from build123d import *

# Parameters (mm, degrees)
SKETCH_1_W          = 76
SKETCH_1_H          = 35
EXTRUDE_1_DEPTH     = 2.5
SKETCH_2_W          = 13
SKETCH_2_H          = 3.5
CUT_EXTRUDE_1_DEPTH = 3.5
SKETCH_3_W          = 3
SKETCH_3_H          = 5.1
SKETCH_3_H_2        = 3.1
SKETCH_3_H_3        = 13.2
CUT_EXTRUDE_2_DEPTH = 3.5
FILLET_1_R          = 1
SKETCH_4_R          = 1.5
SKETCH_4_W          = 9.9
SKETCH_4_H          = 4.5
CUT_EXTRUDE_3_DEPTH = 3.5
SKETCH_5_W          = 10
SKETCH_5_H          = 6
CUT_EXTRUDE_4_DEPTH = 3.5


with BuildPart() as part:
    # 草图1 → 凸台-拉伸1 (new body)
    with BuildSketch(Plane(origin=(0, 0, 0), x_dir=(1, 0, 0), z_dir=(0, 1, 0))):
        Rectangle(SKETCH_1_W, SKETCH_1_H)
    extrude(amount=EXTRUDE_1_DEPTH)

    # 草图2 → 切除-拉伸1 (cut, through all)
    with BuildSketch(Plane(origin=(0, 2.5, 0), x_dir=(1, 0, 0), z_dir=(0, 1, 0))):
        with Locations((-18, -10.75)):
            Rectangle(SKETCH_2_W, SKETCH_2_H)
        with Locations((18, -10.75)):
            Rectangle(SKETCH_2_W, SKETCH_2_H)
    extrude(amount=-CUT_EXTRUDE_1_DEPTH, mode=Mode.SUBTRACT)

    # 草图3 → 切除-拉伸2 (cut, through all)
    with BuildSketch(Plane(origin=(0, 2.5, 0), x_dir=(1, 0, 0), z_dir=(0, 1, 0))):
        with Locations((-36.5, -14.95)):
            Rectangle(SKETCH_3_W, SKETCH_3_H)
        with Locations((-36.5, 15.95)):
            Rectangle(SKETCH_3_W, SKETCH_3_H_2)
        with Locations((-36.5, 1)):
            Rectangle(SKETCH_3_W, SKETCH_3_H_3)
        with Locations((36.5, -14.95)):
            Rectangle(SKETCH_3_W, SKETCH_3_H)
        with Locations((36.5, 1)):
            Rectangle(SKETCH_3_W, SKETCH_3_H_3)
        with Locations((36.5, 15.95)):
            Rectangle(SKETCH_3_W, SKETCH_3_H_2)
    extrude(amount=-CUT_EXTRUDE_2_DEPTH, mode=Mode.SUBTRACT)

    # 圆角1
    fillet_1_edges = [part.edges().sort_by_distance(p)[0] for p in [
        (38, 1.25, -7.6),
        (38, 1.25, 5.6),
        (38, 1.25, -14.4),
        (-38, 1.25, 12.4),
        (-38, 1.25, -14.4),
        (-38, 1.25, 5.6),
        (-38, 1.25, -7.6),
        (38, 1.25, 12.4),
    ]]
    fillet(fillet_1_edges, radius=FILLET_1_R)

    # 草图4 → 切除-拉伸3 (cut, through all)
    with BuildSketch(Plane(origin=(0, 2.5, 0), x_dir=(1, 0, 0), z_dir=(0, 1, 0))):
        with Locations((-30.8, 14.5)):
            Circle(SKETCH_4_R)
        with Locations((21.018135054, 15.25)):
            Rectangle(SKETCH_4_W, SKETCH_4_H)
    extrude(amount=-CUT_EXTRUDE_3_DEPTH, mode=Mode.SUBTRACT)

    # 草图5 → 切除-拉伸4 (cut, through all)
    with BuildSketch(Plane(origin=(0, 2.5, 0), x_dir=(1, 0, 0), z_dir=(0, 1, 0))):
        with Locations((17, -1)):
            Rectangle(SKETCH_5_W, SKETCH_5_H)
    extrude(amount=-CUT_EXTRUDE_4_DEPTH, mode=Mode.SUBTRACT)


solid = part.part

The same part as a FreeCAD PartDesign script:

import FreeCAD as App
import Part
import Sketcher


def edges_at(feature, points):
    """Names of the edges that pass closest to the given points."""
    edges = feature.Shape.Edges
    near = lambda p: min(range(len(edges)), key=lambda i: edges[i].distToShape(Part.Vertex(*p))[0])
    return sorted({f"Edge{near(p) + 1}" for p in points})

doc = App.newDocument("Part")
body = doc.addObject("PartDesign::Body", "Body")

sketch1 = body.newObject("Sketcher::SketchObject", "Sketch")
sketch1.AttachmentSupport = (doc.getObject("XZ_Plane"), [""])
sketch1.MapMode = "FlatFace"
sketch1.addGeometry(Part.LineSegment(App.Vector(-38, -18, 0), App.Vector(-38, 18, 0)), False)
sketch1.addGeometry(Part.LineSegment(App.Vector(-38, 18, 0), App.Vector(38, 18, 0)), False)
sketch1.addGeometry(Part.LineSegment(App.Vector(38, 18, 0), App.Vector(38, -18, 0)), False)
sketch1.addGeometry(Part.LineSegment(App.Vector(38, -18, 0), App.Vector(-38, -18, 0)), False)
sketch1.addConstraint(Sketcher.Constraint("Coincident", 0, 2, 1, 1))
sketch1.addConstraint(Sketcher.Constraint("Coincident", 1, 2, 2, 1))
sketch1.addConstraint(Sketcher.Constraint("Coincident", 2, 2, 3, 1))
sketch1.addConstraint(Sketcher.Constraint("Coincident", 3, 2, 0, 1))
sketch1.addConstraint(Sketcher.Constraint("Vertical", 0))
sketch1.addConstraint(Sketcher.Constraint("Horizontal", 1))
sketch1.addConstraint(Sketcher.Constraint("Vertical", 2))
sketch1.addConstraint(Sketcher.Constraint("Horizontal", 3))
sketch1.addConstraint(Sketcher.Constraint("Symmetric", 0, 2, 2, 2, -1, 1))
sketch1.addConstraint(Sketcher.Constraint("DistanceX", 1, 1, 1, 2, 76.0))
sketch1.addConstraint(Sketcher.Constraint("DistanceY", 0, 1, 0, 2, 35.0))
pad1 = body.newObject("PartDesign::Pad", "Pad")
pad1.Profile = sketch1
pad1.Length = 2.5
pad1.Reversed = True

sketch2 = body.newObject("Sketcher::SketchObject", "Sketch001")
sketch2.AttachmentSupport = (doc.getObject("XZ_Plane"), [""])
sketch2.MapMode = "FlatFace"
sketch2.AttachmentOffset = App.Placement(App.Vector(0, 0, -2.5), App.Rotation())
sketch2.addGeometry(Part.LineSegment(App.Vector(-24.5, 9, 0), App.Vector(-24.5, 12.5, 0)), False)
sketch2.addGeometry(Part.LineSegment(App.Vector(-24.5, 12.5, 0), App.Vector(-11.5, 12.5, 0)), False)
sketch2.addGeometry(Part.LineSegment(App.Vector(-11.5, 12.5, 0), App.Vector(-11.5, 9, 0)), False)
sketch2.addGeometry(Part.LineSegment(App.Vector(-11.5, 9, 0), App.Vector(-24.5, 9, 0)), False)
sketch2.addGeometry(Part.LineSegment(App.Vector(11.5, 9, 0), App.Vector(11.5, 12.5, 0)), False)
sketch2.addGeometry(Part.LineSegment(App.Vector(11.5, 12.5, 0), App.Vector(24.5, 12.5, 0)), False)
sketch2.addGeometry(Part.LineSegment(App.Vector(24.5, 12.5, 0), App.Vector(24.5, 9, 0)), False)
sketch2.addGeometry(Part.LineSegment(App.Vector(24.5, 9, 0), App.Vector(11.5, 9, 0)), False)
sketch2.addConstraint(Sketcher.Constraint("Coincident", 0, 2, 1, 1))
sketch2.addConstraint(Sketcher.Constraint("Coincident", 1, 2, 2, 1))
sketch2.addConstraint(Sketcher.Constraint("Coincident", 2, 2, 3, 1))
sketch2.addConstraint(Sketcher.Constraint("Coincident", 3, 2, 0, 1))
sketch2.addConstraint(Sketcher.Constraint("Coincident", 4, 2, 5, 1))
sketch2.addConstraint(Sketcher.Constraint("Coincident", 5, 2, 6, 1))
sketch2.addConstraint(Sketcher.Constraint("Coincident", 6, 2, 7, 1))
sketch2.addConstraint(Sketcher.Constraint("Coincident", 7, 2, 4, 1))
sketch2.addConstraint(Sketcher.Constraint("Vertical", 0))
sketch2.addConstraint(Sketcher.Constraint("Horizontal", 1))
sketch2.addConstraint(Sketcher.Constraint("Vertical", 2))
sketch2.addConstraint(Sketcher.Constraint("Horizontal", 3))
sketch2.addConstraint(Sketcher.Constraint("Vertical", 4))
sketch2.addConstraint(Sketcher.Constraint("Horizontal", 5))
sketch2.addConstraint(Sketcher.Constraint("Vertical", 6))
sketch2.addConstraint(Sketcher.Constraint("Horizontal", 7))
sketch2.addConstraint(Sketcher.Constraint("Symmetric", 1, 2, 4, 2, -2))
sketch2.addConstraint(Sketcher.Constraint("Symmetric", 3, 2, 6, 2, -2))
sketch2.addConstraint(Sketcher.Constraint("DistanceX", 1, 1, 1, 2, 13.0))
sketch2.addConstraint(Sketcher.Constraint("DistanceY", 0, 1, 0, 2, 3.5))
sketch2.addConstraint(Sketcher.Constraint("DistanceY", -1, 1, 2, 2, 9.0))
sketch2.addConstraint(Sketcher.Constraint("DistanceX", 1, 2, 4, 2, 23.0))
pocket1 = body.newObject("PartDesign::Pocket", "Pocket")
pocket1.Profile = sketch2
pocket1.Type = "ThroughAll"
pocket1.Reversed = True

sketch3 = body.newObject("Sketcher::SketchObject", "Sketch002")
sketch3.AttachmentSupport = (doc.getObject("XZ_Plane"), [""])
sketch3.MapMode = "FlatFace"
sketch3.AttachmentOffset = App.Placement(App.Vector(0, 0, -2.5), App.Rotation())
sketch3.addGeometry(Part.LineSegment(App.Vector(-38, 12.4, 0), App.Vector(-38, 17.5, 0)), False)
sketch3.addGeometry(Part.LineSegment(App.Vector(-38, 17.5, 0), App.Vector(-35, 17.5, 0)), False)
sketch3.addGeometry(Part.LineSegment(App.Vector(-35, 17.5, 0), App.Vector(-35, 12.4, 0)), False)
sketch3.addGeometry(Part.LineSegment(App.Vector(-35, 12.4, 0), App.Vector(-38, 12.4, 0)), False)
sketch3.addGeometry(Part.LineSegment(App.Vector(-38, -17.5, 0), App.Vector(-38, -14.4, 0)), False)
sketch3.addGeometry(Part.LineSegment(App.Vector(-38, -14.4, 0), App.Vector(-35, -14.4, 0)), False)
sketch3.addGeometry(Part.LineSegment(App.Vector(-35, -14.4, 0), App.Vector(-35, -17.5, 0)), False)
sketch3.addGeometry(Part.LineSegment(App.Vector(-35, -17.5, 0), App.Vector(-38, -17.5, 0)), False)
sketch3.addGeometry(Part.LineSegment(App.Vector(-38, -7.6, 0), App.Vector(-38, 5.6, 0)), False)
sketch3.addGeometry(Part.LineSegment(App.Vector(-38, 5.6, 0), App.Vector(-35, 5.6, 0)), False)
sketch3.addGeometry(Part.LineSegment(App.Vector(-35, 5.6, 0), App.Vector(-35, -7.6, 0)), False)
sketch3.addGeometry(Part.LineSegment(App.Vector(-35, -7.6, 0), App.Vector(-38, -7.6, 0)), False)
sketch3.addGeometry(Part.LineSegment(App.Vector(35, 12.4, 0), App.Vector(35, 17.5, 0)), False)
sketch3.addGeometry(Part.LineSegment(App.Vector(35, 17.5, 0), App.Vector(38, 17.5, 0)), False)
sketch3.addGeometry(Part.LineSegment(App.Vector(38, 17.5, 0), App.Vector(38, 12.4, 0)), False)
sketch3.addGeometry(Part.LineSegment(App.Vector(38, 12.4, 0), App.Vector(35, 12.4, 0)), False)
sketch3.addGeometry(Part.LineSegment(App.Vector(35, -7.6, 0), App.Vector(35, 5.6, 0)), False)
sketch3.addGeometry(Part.LineSegment(App.Vector(35, 5.6, 0), App.Vector(38, 5.6, 0)), False)
sketch3.addGeometry(Part.LineSegment(App.Vector(38, 5.6, 0), App.Vector(38, -7.6, 0)), False)
sketch3.addGeometry(Part.LineSegment(App.Vector(38, -7.6, 0), App.Vector(35, -7.6, 0)), False)
sketch3.addGeometry(Part.LineSegment(App.Vector(35, -17.5, 0), App.Vector(35, -14.4, 0)), False)
sketch3.addGeometry(Part.LineSegment(App.Vector(35, -14.4, 0), App.Vector(38, -14.4, 0)), False)
sketch3.addGeometry(Part.LineSegment(App.Vector(38, -14.4, 0), App.Vector(38, -17.5, 0)), False)
sketch3.addGeometry(Part.LineSegment(App.Vector(38, -17.5, 0), App.Vector(35, -17.5, 0)), False)
sketch3.addConstraint(Sketcher.Constraint("Coincident", 0, 2, 1, 1))
sketch3.addConstraint(Sketcher.Constraint("Coincident", 1, 2, 2, 1))
sketch3.addConstraint(Sketcher.Constraint("Coincident", 2, 2, 3, 1))
sketch3.addConstraint(Sketcher.Constraint("Coincident", 3, 2, 0, 1))
sketch3.addConstraint(Sketcher.Constraint("Coincident", 4, 2, 5, 1))
sketch3.addConstraint(Sketcher.Constraint("Coincident", 5, 2, 6, 1))
sketch3.addConstraint(Sketcher.Constraint("Coincident", 6, 2, 7, 1))
sketch3.addConstraint(Sketcher.Constraint("Coincident", 7, 2, 4, 1))
sketch3.addConstraint(Sketcher.Constraint("Coincident", 8, 2, 9, 1))
sketch3.addConstraint(Sketcher.Constraint("Coincident", 9, 2, 10, 1))
sketch3.addConstraint(Sketcher.Constraint("Coincident", 10, 2, 11, 1))
sketch3.addConstraint(Sketcher.Constraint("Coincident", 11, 2, 8, 1))
sketch3.addConstraint(Sketcher.Constraint("Coincident", 12, 2, 13, 1))
sketch3.addConstraint(Sketcher.Constraint("Coincident", 13, 2, 14, 1))
sketch3.addConstraint(Sketcher.Constraint("Coincident", 14, 2, 15, 1))
sketch3.addConstraint(Sketcher.Constraint("Coincident", 15, 2, 12, 1))
sketch3.addConstraint(Sketcher.Constraint("Coincident", 16, 2, 17, 1))
sketch3.addConstraint(Sketcher.Constraint("Coincident", 17, 2, 18, 1))
sketch3.addConstraint(Sketcher.Constraint("Coincident", 18, 2, 19, 1))
sketch3.addConstraint(Sketcher.Constraint("Coincident", 19, 2, 16, 1))
sketch3.addConstraint(Sketcher.Constraint("Coincident", 20, 2, 21, 1))
sketch3.addConstraint(Sketcher.Constraint("Coincident", 21, 2, 22, 1))
sketch3.addConstraint(Sketcher.Constraint("Coincident", 22, 2, 23, 1))
sketch3.addConstraint(Sketcher.Constraint("Coincident", 23, 2, 20, 1))
sketch3.addConstraint(Sketcher.Constraint("Vertical", 0))
sketch3.addConstraint(Sketcher.Constraint("Horizontal", 1))
sketch3.addConstraint(Sketcher.Constraint("Vertical", 2))
sketch3.addConstraint(Sketcher.Constraint("Horizontal", 3))
sketch3.addConstraint(Sketcher.Constraint("Vertical", 4))
sketch3.addConstraint(Sketcher.Constraint("Horizontal", 5))
sketch3.addConstraint(Sketcher.Constraint("Vertical", 6))
sketch3.addConstraint(Sketcher.Constraint("Horizontal", 7))
sketch3.addConstraint(Sketcher.Constraint("Vertical", 8))
sketch3.addConstraint(Sketcher.Constraint("Horizontal", 9))
sketch3.addConstraint(Sketcher.Constraint("Vertical", 10))
sketch3.addConstraint(Sketcher.Constraint("Horizontal", 11))
sketch3.addConstraint(Sketcher.Constraint("Vertical", 12))
sketch3.addConstraint(Sketcher.Constraint("Horizontal", 13))
sketch3.addConstraint(Sketcher.Constraint("Vertical", 14))
sketch3.addConstraint(Sketcher.Constraint("Horizontal", 15))
sketch3.addConstraint(Sketcher.Constraint("Vertical", 16))
sketch3.addConstraint(Sketcher.Constraint("Horizontal", 17))
sketch3.addConstraint(Sketcher.Constraint("Vertical", 18))
sketch3.addConstraint(Sketcher.Constraint("Horizontal", 19))
sketch3.addConstraint(Sketcher.Constraint("Vertical", 20))
sketch3.addConstraint(Sketcher.Constraint("Horizontal", 21))
sketch3.addConstraint(Sketcher.Constraint("Vertical", 22))
sketch3.addConstraint(Sketcher.Constraint("Horizontal", 23))
sketch3.addConstraint(Sketcher.Constraint("Symmetric", 6, 2, 12, 2, -1, 1))
sketch3.addConstraint(Sketcher.Constraint("Symmetric", 0, 2, 22, 2, -1, 1))
sketch3.addConstraint(Sketcher.Constraint("Symmetric", 1, 2, 12, 2, -2))
sketch3.addConstraint(Sketcher.Constraint("Symmetric", 3, 2, 14, 2, -2))
sketch3.addConstraint(Sketcher.Constraint("Symmetric", 9, 2, 16, 2, -2))
sketch3.addConstraint(Sketcher.Constraint("Symmetric", 11, 2, 18, 2, -2))
sketch3.addConstraint(Sketcher.Constraint("Symmetric", 5, 2, 20, 2, -2))
sketch3.addConstraint(Sketcher.Constraint("Vertical", 3, 2, 4, 2))
sketch3.addConstraint(Sketcher.Constraint("Vertical", 7, 2, 8, 2))
sketch3.addConstraint(Sketcher.Constraint("Vertical", 6, 2, 9, 2))
sketch3.addConstraint(Sketcher.Constraint("DistanceX", 1, 1, 1, 2, 3.0))
sketch3.addConstraint(Sketcher.Constraint("DistanceY", 0, 1, 0, 2, 5.1))
sketch3.addConstraint(Sketcher.Constraint("DistanceY", 4, 1, 4, 2, 3.1))
sketch3.addConstraint(Sketcher.Constraint("DistanceY", 8, 1, 8, 2, 13.2))
sketch3.addConstraint(Sketcher.Constraint("DistanceX", 0, 2, -1, 1, 38.0))
sketch3.addConstraint(Sketcher.Constraint("DistanceY", 6, 2, 1, 2, 35.0))
sketch3.addConstraint(Sketcher.Constraint("DistanceY", 4, 2, 8, 2, 20.0))
pocket2 = body.newObject("PartDesign::Pocket", "Pocket001")
pocket2.Profile = sketch3
pocket2.Type = "ThroughAll"
pocket2.Reversed = True
doc.recompute()

fillet = body.newObject("PartDesign::Fillet", "Fillet")
fillet.Base = (pocket2, edges_at(pocket2, [
    (38, 1.25, -7.6),
    (38, 1.25, 5.6),
    (38, 1.25, -14.4),
    (-38, 1.25, 12.4),
    (-38, 1.25, -14.4),
    (-38, 1.25, 5.6),
    (-38, 1.25, -7.6),
    (38, 1.25, 12.4),
]))
fillet.Radius = 1

sketch4 = body.newObject("Sketcher::SketchObject", "Sketch003")
sketch4.AttachmentSupport = (doc.getObject("XZ_Plane"), [""])
sketch4.MapMode = "FlatFace"
sketch4.AttachmentOffset = App.Placement(App.Vector(0, 0, -2.5), App.Rotation())
sketch4.addGeometry(Part.Circle(App.Vector(-30.8, -14.5, 0), App.Vector(0, 0, 1), 1.5), False)
sketch4.addGeometry(Part.LineSegment(App.Vector(16.1, -17.5, 0), App.Vector(16.1, -13, 0)), False)
sketch4.addGeometry(Part.LineSegment(App.Vector(16.1, -13, 0), App.Vector(26, -13, 0)), False)
sketch4.addGeometry(Part.LineSegment(App.Vector(26, -13, 0), App.Vector(26, -17.5, 0)), False)
sketch4.addGeometry(Part.LineSegment(App.Vector(26, -17.5, 0), App.Vector(16.1, -17.5, 0)), False)
sketch4.addConstraint(Sketcher.Constraint("Coincident", 1, 2, 2, 1))
sketch4.addConstraint(Sketcher.Constraint("Coincident", 2, 2, 3, 1))
sketch4.addConstraint(Sketcher.Constraint("Coincident", 3, 2, 4, 1))
sketch4.addConstraint(Sketcher.Constraint("Coincident", 4, 2, 1, 1))
sketch4.addConstraint(Sketcher.Constraint("Vertical", 1))
sketch4.addConstraint(Sketcher.Constraint("Horizontal", 2))
sketch4.addConstraint(Sketcher.Constraint("Vertical", 3))
sketch4.addConstraint(Sketcher.Constraint("Horizontal", 4))
sketch4.addConstraint(Sketcher.Constraint("Diameter", 0, 3.0))
sketch4.addConstraint(Sketcher.Constraint("DistanceX", 2, 1, 2, 2, 9.9))
sketch4.addConstraint(Sketcher.Constraint("DistanceY", 1, 1, 1, 2, 4.5))
sketch4.addConstraint(Sketcher.Constraint("DistanceY", 1, 2, -1, 1, 13.0))
sketch4.addConstraint(Sketcher.Constraint("DistanceY", 3, 2, 0, 3, 3.0))
sketch4.addConstraint(Sketcher.Constraint("DistanceX", 0, 3, -1, 1, 30.8))
sketch4.addConstraint(Sketcher.Constraint("DistanceX", -1, 1, 1, 2, 16.068135))
pocket3 = body.newObject("PartDesign::Pocket", "Pocket002")
pocket3.Profile = sketch4
pocket3.Type = "ThroughAll"
pocket3.Reversed = True

sketch5 = body.newObject("Sketcher::SketchObject", "Sketch004")
sketch5.AttachmentSupport = (doc.getObject("XZ_Plane"), [""])
sketch5.MapMode = "FlatFace"
sketch5.AttachmentOffset = App.Placement(App.Vector(0, 0, -2.5), App.Rotation())
sketch5.addGeometry(Part.LineSegment(App.Vector(12, -2, 0), App.Vector(12, 4, 0)), False)
sketch5.addGeometry(Part.LineSegment(App.Vector(12, 4, 0), App.Vector(22, 4, 0)), False)
sketch5.addGeometry(Part.LineSegment(App.Vector(22, 4, 0), App.Vector(22, -2, 0)), False)
sketch5.addGeometry(Part.LineSegment(App.Vector(22, -2, 0), App.Vector(12, -2, 0)), False)
sketch5.addConstraint(Sketcher.Constraint("Coincident", 0, 2, 1, 1))
sketch5.addConstraint(Sketcher.Constraint("Coincident", 1, 2, 2, 1))
sketch5.addConstraint(Sketcher.Constraint("Coincident", 2, 2, 3, 1))
sketch5.addConstraint(Sketcher.Constraint("Coincident", 3, 2, 0, 1))
sketch5.addConstraint(Sketcher.Constraint("Vertical", 0))
sketch5.addConstraint(Sketcher.Constraint("Horizontal", 1))
sketch5.addConstraint(Sketcher.Constraint("Vertical", 2))
sketch5.addConstraint(Sketcher.Constraint("Horizontal", 3))
sketch5.addConstraint(Sketcher.Constraint("DistanceX", 1, 1, 1, 2, 10.0))
sketch5.addConstraint(Sketcher.Constraint("DistanceY", 0, 1, 0, 2, 6.0))
sketch5.addConstraint(Sketcher.Constraint("DistanceX", -1, 1, 0, 2, 12.0))
sketch5.addConstraint(Sketcher.Constraint("DistanceY", -1, 1, 0, 2, 4.0))
pocket4 = body.newObject("PartDesign::Pocket", "Pocket003")
pocket4.Profile = sketch5
pocket4.Type = "ThroughAll"
pocket4.Reversed = True

doc.recompute()
